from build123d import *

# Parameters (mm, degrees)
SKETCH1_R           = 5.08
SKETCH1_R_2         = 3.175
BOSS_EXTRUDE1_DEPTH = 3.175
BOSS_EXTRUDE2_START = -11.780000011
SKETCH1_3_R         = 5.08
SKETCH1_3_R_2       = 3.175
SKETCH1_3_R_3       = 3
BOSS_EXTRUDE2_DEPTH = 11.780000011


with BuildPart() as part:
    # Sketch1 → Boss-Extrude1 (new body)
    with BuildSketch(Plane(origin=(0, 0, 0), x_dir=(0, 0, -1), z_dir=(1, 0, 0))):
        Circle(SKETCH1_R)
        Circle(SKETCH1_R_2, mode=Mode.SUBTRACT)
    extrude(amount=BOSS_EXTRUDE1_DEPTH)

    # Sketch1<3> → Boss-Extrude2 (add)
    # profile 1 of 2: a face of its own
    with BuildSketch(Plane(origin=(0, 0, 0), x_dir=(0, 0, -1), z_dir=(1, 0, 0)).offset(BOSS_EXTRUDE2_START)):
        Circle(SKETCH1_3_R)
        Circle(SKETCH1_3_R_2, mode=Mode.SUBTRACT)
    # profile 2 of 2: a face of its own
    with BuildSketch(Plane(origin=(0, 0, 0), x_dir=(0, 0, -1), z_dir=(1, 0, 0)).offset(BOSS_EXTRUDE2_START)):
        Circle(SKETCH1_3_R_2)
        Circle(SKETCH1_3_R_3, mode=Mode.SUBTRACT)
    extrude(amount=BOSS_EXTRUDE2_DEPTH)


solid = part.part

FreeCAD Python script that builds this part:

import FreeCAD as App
import Part
import Sketcher
Q = App.Units.Quantity

doc = App.newDocument("Part")
body = doc.addObject("PartDesign::Body", "Body")

# Sketch on YZ plane
sketch1 = doc.addObject("Sketcher::SketchObject", "Sketch")
body.addObject(sketch1)
sketch1.AttachmentSupport = (doc.YZ_Plane, [""])
sketch1.MapMode = "FlatFace"
sketch1.addGeometry([
    Part.Circle(App.Vector(0, 0, 0), App.Vector(0, 0, 1), 5.08),
    Part.Circle(App.Vector(0, 0, 0), App.Vector(0, 0, 1), 3.175),
], False)
sketch1.addConstraint([
    Sketcher.Constraint("Coincident", 0, 3, -1, 1),
    Sketcher.Constraint("Coincident", 1, 3, -1, 1),
    Sketcher.Constraint("Diameter", 0, Q("0.4 in")),
    Sketcher.Constraint("Diameter", 1, Q("0.25 in")),
])
pad1 = doc.addObject("PartDesign::Pad", "Pad")
body.addObject(pad1)
pad1.Profile = sketch1
pad1.Length = Q("0.125 in")

# Sketch on YZ plane
sketch2 = doc.addObject("Sketcher::SketchObject", "Sketch001")
body.addObject(sketch2)
sketch2.AttachmentSupport = (doc.YZ_Plane, [""])
sketch2.MapMode = "FlatFace"
sketch2.AttachmentOffset = App.Placement(App.Vector(0, 0, -11.78), App.Rotation())
sketch2.addGeometry([
    Part.Circle(App.Vector(0, 0, 0), App.Vector(0, 0, 1), 5.08),
    Part.Circle(App.Vector(0, 0, 0), App.Vector(0, 0, 1), 3),
], False)
sketch2.addConstraint([
    Sketcher.Constraint("Coincident", 0, 3, -1, 1),
    Sketcher.Constraint("Coincident", 1, 3, -1, 1),
    Sketcher.Constraint("Diameter", 0, Q("0.4 in")),
    Sketcher.Constraint("Diameter", 1, Q("6 mm")),
])
pad2 = doc.addObject("PartDesign::Pad", "Pad001")
body.addObject(pad2)
pad2.Profile = sketch2
pad2.Length = 11.78

doc.recompute()
